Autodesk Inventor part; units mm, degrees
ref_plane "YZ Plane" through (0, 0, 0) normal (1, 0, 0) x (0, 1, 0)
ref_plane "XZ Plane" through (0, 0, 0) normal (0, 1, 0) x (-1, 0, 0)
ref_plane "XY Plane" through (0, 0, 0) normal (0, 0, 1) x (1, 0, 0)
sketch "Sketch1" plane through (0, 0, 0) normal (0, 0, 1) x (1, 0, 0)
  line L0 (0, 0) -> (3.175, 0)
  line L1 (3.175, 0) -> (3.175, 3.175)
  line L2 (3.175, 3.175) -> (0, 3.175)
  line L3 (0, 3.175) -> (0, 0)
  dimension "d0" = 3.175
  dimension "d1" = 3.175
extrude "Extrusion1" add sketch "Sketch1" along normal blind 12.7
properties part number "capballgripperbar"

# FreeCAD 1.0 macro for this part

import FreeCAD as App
import Part
import Sketcher

V = App.Vector
Q = App.Units.Quantity


def add_polygon(sketch, points):
    """Adds a closed chain of lines whose ends are joined by coincident constraints."""
    first, n = sketch.GeometryCount, len(points)
    for a, b in zip(points, points[1:] + points[:1]):
        sketch.addGeometry(Part.LineSegment(App.Vector(*a, 0), App.Vector(*b, 0)), False)
    for i in range(n):
        sketch.addConstraint(Sketcher.Constraint("Coincident", first + i, 2, first + (i + 1) % n, 1))

doc = App.newDocument("Part")
body = doc.addObject("PartDesign::Body", "Body")

sketch1 = doc.addObject("Sketcher::SketchObject", "Sketch")
body.addObject(sketch1)
sketch1.AttachmentSupport = (doc.XY_Plane, [""])
sketch1.MapMode = "FlatFace"
add_polygon(sketch1, [(0, 3.2), (0, 0), (3.2, 0), (3.2, 3.2)])
sketch1.addConstraint([
    Sketcher.Constraint("Vertical", 0),
    Sketcher.Constraint("Horizontal", 1),
    Sketcher.Constraint("Vertical", 2),
    Sketcher.Constraint("Horizontal", 3),
    Sketcher.Constraint("Coincident", 0, 2, -1, 1),
    Sketcher.Constraint("Equal", 3, 0),
    Sketcher.Constraint("DistanceX", 1, 1, 1, 2, Q("0.125 in")),
])
pad1 = doc.addObject("PartDesign::Pad", "Pad")
body.addObject(pad1)
pad1.Profile = sketch1
pad1.Length = Q("0.5 in")

doc.recompute()
